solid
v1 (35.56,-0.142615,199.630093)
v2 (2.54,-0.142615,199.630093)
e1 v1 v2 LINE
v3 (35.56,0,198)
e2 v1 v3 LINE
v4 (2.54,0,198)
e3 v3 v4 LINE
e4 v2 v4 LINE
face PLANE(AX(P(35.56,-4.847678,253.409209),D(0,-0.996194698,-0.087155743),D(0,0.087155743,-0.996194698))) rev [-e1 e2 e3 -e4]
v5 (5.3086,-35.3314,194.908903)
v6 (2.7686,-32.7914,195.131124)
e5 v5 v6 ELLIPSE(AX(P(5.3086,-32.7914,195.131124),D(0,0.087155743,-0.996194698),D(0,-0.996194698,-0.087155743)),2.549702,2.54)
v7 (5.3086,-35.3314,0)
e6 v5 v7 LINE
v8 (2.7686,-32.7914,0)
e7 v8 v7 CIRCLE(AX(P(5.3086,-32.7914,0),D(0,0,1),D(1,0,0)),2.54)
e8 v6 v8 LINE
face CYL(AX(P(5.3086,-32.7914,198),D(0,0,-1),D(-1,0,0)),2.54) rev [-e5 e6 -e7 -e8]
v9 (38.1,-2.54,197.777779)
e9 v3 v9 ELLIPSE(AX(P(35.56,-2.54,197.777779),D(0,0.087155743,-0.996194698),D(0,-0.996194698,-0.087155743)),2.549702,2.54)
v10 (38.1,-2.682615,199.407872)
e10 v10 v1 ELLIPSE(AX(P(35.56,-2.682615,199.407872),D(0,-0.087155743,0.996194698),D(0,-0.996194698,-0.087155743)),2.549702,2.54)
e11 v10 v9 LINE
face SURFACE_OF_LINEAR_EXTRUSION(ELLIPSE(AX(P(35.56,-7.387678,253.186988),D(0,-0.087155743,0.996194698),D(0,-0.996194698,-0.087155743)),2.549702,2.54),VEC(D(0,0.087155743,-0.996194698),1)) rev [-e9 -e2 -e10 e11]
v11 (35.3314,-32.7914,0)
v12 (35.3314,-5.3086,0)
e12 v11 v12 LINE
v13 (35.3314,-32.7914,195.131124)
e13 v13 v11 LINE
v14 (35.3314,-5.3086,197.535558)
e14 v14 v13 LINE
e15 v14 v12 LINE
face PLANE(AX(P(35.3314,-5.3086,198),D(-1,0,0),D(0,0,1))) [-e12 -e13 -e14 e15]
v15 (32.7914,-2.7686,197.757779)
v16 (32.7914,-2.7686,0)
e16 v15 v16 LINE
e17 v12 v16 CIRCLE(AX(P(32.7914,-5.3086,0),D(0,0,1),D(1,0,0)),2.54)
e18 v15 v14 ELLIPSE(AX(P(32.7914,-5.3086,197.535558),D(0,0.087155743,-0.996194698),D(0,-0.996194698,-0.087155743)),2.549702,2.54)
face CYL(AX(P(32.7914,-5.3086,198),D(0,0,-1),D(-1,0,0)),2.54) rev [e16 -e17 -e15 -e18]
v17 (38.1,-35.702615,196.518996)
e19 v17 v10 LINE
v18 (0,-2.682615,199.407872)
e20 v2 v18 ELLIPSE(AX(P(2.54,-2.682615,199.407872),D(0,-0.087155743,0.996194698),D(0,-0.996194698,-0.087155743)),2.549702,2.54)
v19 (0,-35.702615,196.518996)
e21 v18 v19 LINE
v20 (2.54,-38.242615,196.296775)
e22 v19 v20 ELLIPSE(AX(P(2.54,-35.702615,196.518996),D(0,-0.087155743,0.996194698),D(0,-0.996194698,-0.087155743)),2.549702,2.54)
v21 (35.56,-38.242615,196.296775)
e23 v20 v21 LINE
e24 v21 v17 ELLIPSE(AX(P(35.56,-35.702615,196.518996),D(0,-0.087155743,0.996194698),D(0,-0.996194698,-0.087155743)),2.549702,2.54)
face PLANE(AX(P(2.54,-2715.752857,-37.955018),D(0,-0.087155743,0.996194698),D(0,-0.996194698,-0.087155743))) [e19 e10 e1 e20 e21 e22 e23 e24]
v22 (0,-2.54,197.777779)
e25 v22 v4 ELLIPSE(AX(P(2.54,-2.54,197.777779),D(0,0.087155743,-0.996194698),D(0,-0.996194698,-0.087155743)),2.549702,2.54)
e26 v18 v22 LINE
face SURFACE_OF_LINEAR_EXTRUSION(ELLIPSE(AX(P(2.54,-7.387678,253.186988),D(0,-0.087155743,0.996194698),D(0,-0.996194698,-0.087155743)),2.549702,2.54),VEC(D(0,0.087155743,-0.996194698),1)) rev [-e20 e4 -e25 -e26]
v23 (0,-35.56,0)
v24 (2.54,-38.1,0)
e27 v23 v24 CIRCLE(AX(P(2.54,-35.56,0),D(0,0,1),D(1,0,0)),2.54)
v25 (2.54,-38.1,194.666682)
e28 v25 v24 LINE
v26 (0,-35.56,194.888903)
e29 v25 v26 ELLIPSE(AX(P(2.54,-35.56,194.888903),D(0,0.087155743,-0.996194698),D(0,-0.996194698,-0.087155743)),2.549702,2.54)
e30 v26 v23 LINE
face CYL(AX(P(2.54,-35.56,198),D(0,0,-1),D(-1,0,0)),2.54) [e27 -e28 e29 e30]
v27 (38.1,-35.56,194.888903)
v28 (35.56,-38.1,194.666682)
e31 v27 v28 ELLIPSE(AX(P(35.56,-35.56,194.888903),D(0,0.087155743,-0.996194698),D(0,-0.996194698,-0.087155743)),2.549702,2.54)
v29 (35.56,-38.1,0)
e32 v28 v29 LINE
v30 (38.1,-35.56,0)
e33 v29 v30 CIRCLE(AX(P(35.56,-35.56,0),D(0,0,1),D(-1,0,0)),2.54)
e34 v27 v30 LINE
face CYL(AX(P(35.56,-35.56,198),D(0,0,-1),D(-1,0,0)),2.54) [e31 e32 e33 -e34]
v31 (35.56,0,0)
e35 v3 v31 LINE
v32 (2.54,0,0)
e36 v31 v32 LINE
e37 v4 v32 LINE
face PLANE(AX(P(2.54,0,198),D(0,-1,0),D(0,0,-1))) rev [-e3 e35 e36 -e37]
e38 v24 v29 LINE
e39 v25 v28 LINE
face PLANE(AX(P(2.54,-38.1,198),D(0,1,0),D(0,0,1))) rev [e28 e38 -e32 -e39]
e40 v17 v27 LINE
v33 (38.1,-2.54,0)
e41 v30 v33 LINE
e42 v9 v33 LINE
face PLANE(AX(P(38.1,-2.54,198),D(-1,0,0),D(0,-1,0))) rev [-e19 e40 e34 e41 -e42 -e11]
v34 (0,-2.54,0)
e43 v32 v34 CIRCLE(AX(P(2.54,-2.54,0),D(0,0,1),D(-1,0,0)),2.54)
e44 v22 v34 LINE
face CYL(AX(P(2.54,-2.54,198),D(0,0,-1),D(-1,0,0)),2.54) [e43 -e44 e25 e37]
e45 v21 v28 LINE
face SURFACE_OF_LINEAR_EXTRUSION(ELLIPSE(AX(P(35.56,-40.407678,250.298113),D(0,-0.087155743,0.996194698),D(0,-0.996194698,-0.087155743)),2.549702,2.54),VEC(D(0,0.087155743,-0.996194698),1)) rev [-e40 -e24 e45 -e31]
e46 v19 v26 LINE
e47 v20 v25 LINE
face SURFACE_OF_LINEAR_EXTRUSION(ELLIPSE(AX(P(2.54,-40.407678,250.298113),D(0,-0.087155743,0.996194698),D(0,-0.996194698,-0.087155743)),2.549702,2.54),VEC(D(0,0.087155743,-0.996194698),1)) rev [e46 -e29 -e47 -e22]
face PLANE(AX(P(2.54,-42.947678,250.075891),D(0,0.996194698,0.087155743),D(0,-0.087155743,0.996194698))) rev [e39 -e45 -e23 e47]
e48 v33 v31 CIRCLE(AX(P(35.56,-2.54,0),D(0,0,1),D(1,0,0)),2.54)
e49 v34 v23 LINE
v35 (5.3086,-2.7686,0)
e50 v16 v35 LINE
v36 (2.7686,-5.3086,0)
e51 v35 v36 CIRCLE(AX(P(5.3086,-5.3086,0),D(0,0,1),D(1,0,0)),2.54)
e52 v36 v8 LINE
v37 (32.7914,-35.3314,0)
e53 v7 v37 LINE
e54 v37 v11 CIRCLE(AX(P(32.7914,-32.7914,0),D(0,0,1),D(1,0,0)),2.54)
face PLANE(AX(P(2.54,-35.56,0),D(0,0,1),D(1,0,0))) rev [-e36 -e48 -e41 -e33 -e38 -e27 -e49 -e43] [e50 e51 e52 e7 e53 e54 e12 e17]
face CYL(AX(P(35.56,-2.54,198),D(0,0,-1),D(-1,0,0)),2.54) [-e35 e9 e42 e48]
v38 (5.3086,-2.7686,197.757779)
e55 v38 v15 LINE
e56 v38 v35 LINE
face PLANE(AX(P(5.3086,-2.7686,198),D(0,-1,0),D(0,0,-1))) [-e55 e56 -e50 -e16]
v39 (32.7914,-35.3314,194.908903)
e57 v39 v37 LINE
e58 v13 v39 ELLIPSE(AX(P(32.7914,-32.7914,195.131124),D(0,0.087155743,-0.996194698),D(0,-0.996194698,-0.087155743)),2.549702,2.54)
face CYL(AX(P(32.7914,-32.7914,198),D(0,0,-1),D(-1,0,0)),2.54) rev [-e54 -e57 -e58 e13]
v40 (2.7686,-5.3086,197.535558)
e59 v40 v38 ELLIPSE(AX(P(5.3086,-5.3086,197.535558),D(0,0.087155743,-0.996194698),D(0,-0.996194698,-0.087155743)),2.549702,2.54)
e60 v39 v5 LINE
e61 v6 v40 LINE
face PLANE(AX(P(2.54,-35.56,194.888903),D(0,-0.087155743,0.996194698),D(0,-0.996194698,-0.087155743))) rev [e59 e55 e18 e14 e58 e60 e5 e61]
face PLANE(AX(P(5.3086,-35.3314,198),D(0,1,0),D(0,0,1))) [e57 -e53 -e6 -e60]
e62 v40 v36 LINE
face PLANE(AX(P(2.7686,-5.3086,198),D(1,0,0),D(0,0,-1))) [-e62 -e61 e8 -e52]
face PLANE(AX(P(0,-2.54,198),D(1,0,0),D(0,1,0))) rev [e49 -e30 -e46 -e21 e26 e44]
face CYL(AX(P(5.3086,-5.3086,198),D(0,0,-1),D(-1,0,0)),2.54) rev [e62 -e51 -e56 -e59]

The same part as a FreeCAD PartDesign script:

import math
import FreeCAD as App
import Part
import Sketcher
Q = App.Units.Quantity

doc = App.newDocument("Part")
body = doc.addObject("PartDesign::Body", "Body")

sketch1 = body.newObject("Sketcher::SketchObject", "Sketch")
sketch1.AttachmentSupport = (doc.getObject("XY_Plane"), [""])
sketch1.MapMode = "FlatFace"
sketch1.addGeometry([
    Part.LineSegment(App.Vector(35.6, 0, 0), App.Vector(2.5, 0, 0)),
    Part.ArcOfCircle(Part.Circle(App.Vector(2.5, -2.5, 0), App.Vector(0, 0, 1), 2.5), math.radians(90), math.radians(180)),
    Part.LineSegment(App.Vector(0, -2.5, 0), App.Vector(0, -35.6, 0)),
    Part.ArcOfCircle(Part.Circle(App.Vector(2.5, -35.6, 0), App.Vector(0, 0, 1), 2.5), math.radians(-180), math.radians(-90)),
    Part.LineSegment(App.Vector(2.5, -38.1, 0), App.Vector(35.6, -38.1, 0)),
    Part.ArcOfCircle(Part.Circle(App.Vector(35.6, -35.6, 0), App.Vector(0, 0, 1), 2.5), math.radians(-90), math.radians(0)),
    Part.LineSegment(App.Vector(38.1, -35.6, 0), App.Vector(38.1, -2.5, 0)),
    Part.ArcOfCircle(Part.Circle(App.Vector(35.6, -2.5, 0), App.Vector(0, 0, 1), 2.5), math.radians(0), math.radians(90)),
    Part.LineSegment(App.Vector(5.3, -2.8, 0), App.Vector(32.8, -2.8, 0)),
    Part.ArcOfCircle(Part.Circle(App.Vector(32.8, -5.3, 0), App.Vector(0, 0, 1), 2.5), math.radians(0), math.radians(90)),
    Part.LineSegment(App.Vector(35.3, -5.3, 0), App.Vector(35.3, -32.8, 0)),
    Part.ArcOfCircle(Part.Circle(App.Vector(32.8, -32.8, 0), App.Vector(0, 0, 1), 2.5), math.radians(-90), math.radians(0)),
    Part.LineSegment(App.Vector(32.8, -35.3, 0), App.Vector(5.3, -35.3, 0)),
    Part.ArcOfCircle(Part.Circle(App.Vector(5.3, -32.8, 0), App.Vector(0, 0, 1), 2.5), math.radians(-180), math.radians(-90)),
    Part.LineSegment(App.Vector(2.8, -32.8, 0), App.Vector(2.8, -5.3, 0)),
    Part.ArcOfCircle(Part.Circle(App.Vector(5.3, -5.3, 0), App.Vector(0, 0, 1), 2.5), math.radians(90), math.radians(180)),
], False)
sketch1.addConstraint([
    Sketcher.Constraint("Tangent", 0, 2, 1, 1),
    Sketcher.Constraint("Tangent", 1, 2, 2, 1),
    Sketcher.Constraint("Tangent", 2, 2, 3, 1),
    Sketcher.Constraint("Tangent", 3, 2, 4, 1),
    Sketcher.Constraint("Tangent", 4, 2, 5, 1),
    Sketcher.Constraint("Tangent", 5, 2, 6, 1),
    Sketcher.Constraint("Tangent", 6, 2, 7, 1),
    Sketcher.Constraint("Tangent", 7, 2, 0, 1),
    Sketcher.Constraint("Tangent", 8, 2, 9, 2),
    Sketcher.Constraint("Tangent", 9, 1, 10, 1),
    Sketcher.Constraint("Tangent", 10, 2, 11, 2),
    Sketcher.Constraint("Tangent", 11, 1, 12, 1),
    Sketcher.Constraint("Tangent", 12, 2, 13, 2),
    Sketcher.Constraint("Tangent", 13, 1, 14, 1),
    Sketcher.Constraint("Tangent", 14, 2, 15, 2),
    Sketcher.Constraint("Tangent", 15, 1, 8, 1),
    Sketcher.Constraint("Horizontal", 0),
    Sketcher.Constraint("Vertical", 2),
    Sketcher.Constraint("Horizontal", 4),
    Sketcher.Constraint("Vertical", 6),
    Sketcher.Constraint("Horizontal", 8),
    Sketcher.Constraint("Vertical", 10),
    Sketcher.Constraint("Horizontal", 12),
    Sketcher.Constraint("Vertical", 14),
    Sketcher.Constraint("Equal", 1, 3),
    Sketcher.Constraint("Equal", 3, 5),
    Sketcher.Constraint("Equal", 5, 7),
    Sketcher.Constraint("Equal", 7, 9),
    Sketcher.Constraint("Equal", 9, 11),
    Sketcher.Constraint("Equal", 11, 13),
    Sketcher.Constraint("Equal", 13, 15),
    Sketcher.Constraint("PointOnObject", 0, 2, -1),
    Sketcher.Constraint("PointOnObject", 1, 2, -2),
    Sketcher.Constraint("Equal", 4, 2),
    Sketcher.Constraint("Equal", 12, 10),
    Sketcher.Constraint("Radius", 1, Q("0.1 in")),
    Sketcher.Constraint("DistanceX", 0, 2, 0, 1, Q("1.3 in")),
    Sketcher.Constraint("DistanceX", 8, 1, 8, 2, Q("1.082 in")),
    Sketcher.Constraint("DistanceX", -1, 1, 9, 3, Q("1.291 in")),
    Sketcher.Constraint("DistanceY", 9, 3, -1, 1, Q("0.209 in")),
])
pad1 = body.newObject("PartDesign::Pad", "Pad")
pad1.Profile = sketch1
pad1.Length = 198

sketch2 = body.newObject("Sketcher::SketchObject", "Sketch001")
sketch2.AttachmentSupport = (doc.getObject("YZ_Plane"), [""])
sketch2.MapMode = "FlatFace"
sketch2.AttachmentOffset = App.Placement(App.Vector(0, 0, 1.5 * 25.4), App.Rotation())
sketch2.addGeometry([
    Part.LineSegment(App.Vector(-38.1, 194.7, 0), App.Vector(0, 198, 0)),
    Part.LineSegment(App.Vector(0, 198, 0), App.Vector(-38.1, 198, 0)),
    Part.LineSegment(App.Vector(-38.1, 198, 0), App.Vector(-38.1, 194.7, 0)),
], False)
sketch2.addConstraint([
    Sketcher.Constraint("Coincident", 0, 2, 1, 1),
    Sketcher.Constraint("Coincident", 1, 2, 2, 1),
    Sketcher.Constraint("Coincident", 2, 2, 0, 1),
    Sketcher.Constraint("Horizontal", 1),
    Sketcher.Constraint("Vertical", 2),
    Sketcher.Constraint("PointOnObject", 0, 2, -2),
    Sketcher.Constraint("DistanceX", 1, 2, 1, 1, Q("1.5 in")),
    Sketcher.Constraint("Angle", 0, Q("5 deg")),
    Sketcher.Constraint("DistanceY", -1, 1, 0, 2, 198.0),
])
pocket1 = body.newObject("PartDesign::Pocket", "Pocket")
pocket1.Profile = sketch2
pocket1.Type = "ThroughAll"

sketch3 = body.newObject("Sketcher::SketchObject", "Sketch002")
sketch3.Placement = App.Placement(App.Vector(0, -17.19117, 196.495968), App.Rotation(App.Vector(1, 0, 0), App.Vector(0, 0.996194698, 0.087155743), App.Vector(0, -0.087155743, 0.996194698), "ZXY"))
sketch3.addGeometry([
    Part.LineSegment(App.Vector(2.54, -20.988699, 0), App.Vector(35.56, -20.988699, 0)),
    Part.BSplineCurve([App.Vector(35.56, -20.988699, 0), App.Vector(38.1, -20.988699, 0), App.Vector(38.1, -18.438996, 0)], [3, 3], [0, 1.570796327], False, 2, [1, 0.707106781, 1], False),
    Part.LineSegment(App.Vector(38.1, -18.438996, 0), App.Vector(38.1, 14.707135, 0)),
    Part.BSplineCurve([App.Vector(38.1, 14.707135, 0), App.Vector(38.1, 17.256837, 0), App.Vector(35.56, 17.256837, 0)], [3, 3], [4.71238898, 6.283185307], False, 2, [1, 0.707106781, 1], False),
    Part.LineSegment(App.Vector(35.56, 17.256837, 0), App.Vector(2.54, 17.256837, 0)),
    Part.BSplineCurve([App.Vector(2.54, 17.256837, 0), App.Vector(0, 17.256837, 0), App.Vector(0, 14.707135, 0)], [3, 3], [3.141592654, 4.71238898], False, 2, [1, 0.707106781, 1], False),
    Part.LineSegment(App.Vector(0, 14.707135, 0), App.Vector(0, -18.438996, 0)),
    Part.BSplineCurve([App.Vector(0, -18.438996, 0), App.Vector(0, -20.988699, 0), App.Vector(2.54, -20.988699, 0)], [3, 3], [4.71238898, 6.283185307], False, 2, [1, 0.707106781, 1], False),
], False)
sketch3.addConstraint([
    Sketcher.Constraint("Block", 1),
    Sketcher.Constraint("Block", 3),
    Sketcher.Constraint("Block", 5),
    Sketcher.Constraint("Block", 7),
    Sketcher.Constraint("Coincident", 0, 2, 1, 1),
    Sketcher.Constraint("Coincident", 1, 2, 2, 1),
    Sketcher.Constraint("Coincident", 2, 2, 3, 1),
    Sketcher.Constraint("Coincident", 3, 2, 4, 1),
    Sketcher.Constraint("Coincident", 4, 2, 5, 1),
    Sketcher.Constraint("Coincident", 5, 2, 6, 1),
    Sketcher.Constraint("Coincident", 6, 2, 7, 1),
    Sketcher.Constraint("Coincident", 7, 2, 0, 1),
])
pad2 = body.newObject("PartDesign::Pad", "Pad001")
pad2.Profile = sketch3
pad2.Length = 1.636319

doc.recompute()
